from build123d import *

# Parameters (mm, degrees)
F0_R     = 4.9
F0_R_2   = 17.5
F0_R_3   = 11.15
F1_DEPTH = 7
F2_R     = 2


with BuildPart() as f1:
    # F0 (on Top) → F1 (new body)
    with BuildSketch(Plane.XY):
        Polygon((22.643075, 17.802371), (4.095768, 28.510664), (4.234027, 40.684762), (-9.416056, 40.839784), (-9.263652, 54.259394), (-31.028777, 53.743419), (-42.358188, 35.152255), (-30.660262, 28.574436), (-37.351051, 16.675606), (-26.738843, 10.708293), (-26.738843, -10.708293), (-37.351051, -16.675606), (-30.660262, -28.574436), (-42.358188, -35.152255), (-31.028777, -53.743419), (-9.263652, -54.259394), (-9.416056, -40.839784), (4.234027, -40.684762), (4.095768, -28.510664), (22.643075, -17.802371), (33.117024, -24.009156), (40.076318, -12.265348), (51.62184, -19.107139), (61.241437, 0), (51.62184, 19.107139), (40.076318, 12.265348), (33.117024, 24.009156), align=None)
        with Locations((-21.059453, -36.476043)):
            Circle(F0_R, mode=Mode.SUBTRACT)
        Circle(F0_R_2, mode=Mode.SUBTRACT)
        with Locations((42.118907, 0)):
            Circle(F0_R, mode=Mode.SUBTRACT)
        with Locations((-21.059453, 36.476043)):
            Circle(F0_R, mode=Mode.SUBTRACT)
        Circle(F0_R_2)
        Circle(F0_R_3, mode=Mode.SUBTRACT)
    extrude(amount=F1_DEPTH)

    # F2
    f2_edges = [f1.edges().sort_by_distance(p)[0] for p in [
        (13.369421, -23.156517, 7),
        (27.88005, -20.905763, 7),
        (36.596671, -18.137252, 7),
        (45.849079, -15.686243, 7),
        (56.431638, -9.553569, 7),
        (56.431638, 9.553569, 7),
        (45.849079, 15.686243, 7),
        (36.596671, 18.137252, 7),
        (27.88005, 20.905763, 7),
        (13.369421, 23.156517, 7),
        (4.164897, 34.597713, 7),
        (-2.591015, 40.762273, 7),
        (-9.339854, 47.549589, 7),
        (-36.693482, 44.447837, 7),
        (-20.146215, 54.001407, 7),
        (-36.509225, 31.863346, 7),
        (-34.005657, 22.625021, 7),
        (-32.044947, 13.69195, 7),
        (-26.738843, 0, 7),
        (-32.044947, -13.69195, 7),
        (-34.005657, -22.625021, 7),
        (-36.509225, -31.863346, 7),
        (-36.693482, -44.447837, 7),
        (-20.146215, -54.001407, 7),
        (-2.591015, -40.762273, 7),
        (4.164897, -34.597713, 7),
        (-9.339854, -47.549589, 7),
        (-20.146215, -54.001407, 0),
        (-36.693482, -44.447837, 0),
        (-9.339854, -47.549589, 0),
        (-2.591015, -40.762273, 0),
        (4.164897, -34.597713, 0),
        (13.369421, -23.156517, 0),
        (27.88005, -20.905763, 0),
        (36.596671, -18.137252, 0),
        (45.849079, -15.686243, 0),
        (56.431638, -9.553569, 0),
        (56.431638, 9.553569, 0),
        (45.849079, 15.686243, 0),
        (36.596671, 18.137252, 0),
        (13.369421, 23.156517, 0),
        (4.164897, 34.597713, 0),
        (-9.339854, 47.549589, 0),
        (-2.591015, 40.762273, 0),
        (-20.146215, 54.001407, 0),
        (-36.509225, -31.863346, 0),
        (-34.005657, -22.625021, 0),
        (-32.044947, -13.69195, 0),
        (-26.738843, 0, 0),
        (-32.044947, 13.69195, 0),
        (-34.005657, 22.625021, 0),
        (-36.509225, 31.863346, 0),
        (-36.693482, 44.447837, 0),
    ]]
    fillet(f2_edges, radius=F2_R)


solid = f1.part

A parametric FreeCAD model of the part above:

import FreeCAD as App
import Part
import Sketcher
from FreeCAD import Vector
Q = App.Units.Quantity


def edges_at(feature, points):
    """Names of the edges that pass closest to the given points."""
    edges = feature.Shape.Edges
    near = lambda p: min(range(len(edges)), key=lambda i: edges[i].distToShape(Part.Vertex(*p))[0])
    return sorted({f"Edge{near(p) + 1}" for p in points})

doc = App.newDocument("Part")
body = doc.addObject("PartDesign::Body", "Body")

sketch1 = body.newObject("Sketcher::SketchObject", "Sketch")
sketch1.AttachmentSupport = (doc.getObject("XY_Plane"), [""])
sketch1.MapMode = "FlatFace"
sketch1.addGeometry([
    Part.LineSegment(Vector(22.6, 17.8, 0), Vector(4.1, 28.5, 0)),
    Part.LineSegment(Vector(4.1, 28.5, 0), Vector(4.2, 40.7, 0)),
    Part.LineSegment(Vector(4.2, 40.7, 0), Vector(-9.4, 40.8, 0)),
    Part.LineSegment(Vector(-9.4, 40.8, 0), Vector(-9.3, 54.3, 0)),
    Part.LineSegment(Vector(-9.3, 54.3, 0), Vector(-31, 53.7, 0)),
    Part.LineSegment(Vector(-31, 53.7, 0), Vector(-42.4, 35.2, 0)),
    Part.LineSegment(Vector(-42.4, 35.2, 0), Vector(-30.7, 28.6, 0)),
    Part.LineSegment(Vector(-30.7, 28.6, 0), Vector(-37.4, 16.7, 0)),
    Part.LineSegment(Vector(-37.4, 16.7, 0), Vector(-26.7, 10.7, 0)),
    Part.LineSegment(Vector(-26.7, 10.7, 0), Vector(-26.7, -10.7, 0)),
    Part.LineSegment(Vector(-26.7, -10.7, 0), Vector(-37.4, -16.7, 0)),
    Part.LineSegment(Vector(-37.4, -16.7, 0), Vector(-30.7, -28.6, 0)),
    Part.LineSegment(Vector(-30.7, -28.6, 0), Vector(-42.4, -35.2, 0)),
    Part.LineSegment(Vector(-42.4, -35.2, 0), Vector(-31, -53.7, 0)),
    Part.LineSegment(Vector(-31, -53.7, 0), Vector(-9.3, -54.3, 0)),
    Part.LineSegment(Vector(-9.3, -54.3, 0), Vector(-9.4, -40.8, 0)),
    Part.LineSegment(Vector(-9.4, -40.8, 0), Vector(4.2, -40.7, 0)),
    Part.LineSegment(Vector(4.2, -40.7, 0), Vector(4.1, -28.5, 0)),
    Part.LineSegment(Vector(4.1, -28.5, 0), Vector(22.6, -17.8, 0)),
    Part.LineSegment(Vector(22.6, -17.8, 0), Vector(33.1, -24, 0)),
    Part.LineSegment(Vector(33.1, -24, 0), Vector(40.1, -12.3, 0)),
    Part.LineSegment(Vector(40.1, -12.3, 0), Vector(51.6, -19.1, 0)),
    Part.LineSegment(Vector(51.6, -19.1, 0), Vector(61.2, 0, 0)),
    Part.LineSegment(Vector(61.2, 0, 0), Vector(51.6, 19.1, 0)),
    Part.LineSegment(Vector(51.6, 19.1, 0), Vector(40.1, 12.3, 0)),
    Part.LineSegment(Vector(40.1, 12.3, 0), Vector(33.1, 24, 0)),
    Part.LineSegment(Vector(33.1, 24, 0), Vector(22.6, 17.8, 0)),
    Part.Circle(Vector(-21.1, -36.5, 0), Vector(0, 0, 1), 4.9),
    Part.Circle(Vector(0, 0, 0), Vector(0, 0, 1), 11.2),
    Part.Circle(Vector(-21.1, 36.5, 0), Vector(0, 0, 1), 4.9),
    Part.Circle(Vector(42.1, 0, 0), Vector(0, 0, 1), 4.9),
], False)
sketch1.addConstraint([
    Sketcher.Constraint("Coincident", 0, 2, 1, 1),
    Sketcher.Constraint("Coincident", 1, 2, 2, 1),
    Sketcher.Constraint("Coincident", 2, 2, 3, 1),
    Sketcher.Constraint("Coincident", 3, 2, 4, 1),
    Sketcher.Constraint("Coincident", 4, 2, 5, 1),
    Sketcher.Constraint("Coincident", 5, 2, 6, 1),
    Sketcher.Constraint("Coincident", 6, 2, 7, 1),
    Sketcher.Constraint("Coincident", 7, 2, 8, 1),
    Sketcher.Constraint("Coincident", 8, 2, 9, 1),
    Sketcher.Constraint("Coincident", 9, 2, 10, 1),
    Sketcher.Constraint("Coincident", 10, 2, 11, 1),
    Sketcher.Constraint("Coincident", 11, 2, 12, 1),
    Sketcher.Constraint("Coincident", 12, 2, 13, 1),
    Sketcher.Constraint("Coincident", 13, 2, 14, 1),
    Sketcher.Constraint("Coincident", 14, 2, 15, 1),
    Sketcher.Constraint("Coincident", 15, 2, 16, 1),
    Sketcher.Constraint("Coincident", 16, 2, 17, 1),
    Sketcher.Constraint("Coincident", 17, 2, 18, 1),
    Sketcher.Constraint("Coincident", 18, 2, 19, 1),
    Sketcher.Constraint("Coincident", 19, 2, 20, 1),
    Sketcher.Constraint("Coincident", 20, 2, 21, 1),
    Sketcher.Constraint("Coincident", 21, 2, 22, 1),
    Sketcher.Constraint("Coincident", 22, 2, 23, 1),
    Sketcher.Constraint("Coincident", 23, 2, 24, 1),
    Sketcher.Constraint("Coincident", 24, 2, 25, 1),
    Sketcher.Constraint("Coincident", 25, 2, 26, 1),
    Sketcher.Constraint("Coincident", 26, 2, 0, 1),
    Sketcher.Constraint("Vertical", 9),
    Sketcher.Constraint("Coincident", 28, 3, -1, 1),
    Sketcher.Constraint("Equal", 27, 29),
    Sketcher.Constraint("Equal", 29, 30),
    Sketcher.Constraint("Symmetric", 27, 3, 29, 3, -1),
    Sketcher.Constraint("Symmetric", 7, 2, 10, 2, -1),
    Sketcher.Constraint("Symmetric", 6, 2, 11, 2, -1),
    Sketcher.Constraint("Symmetric", 5, 2, 12, 2, -1),
    Sketcher.Constraint("Symmetric", 4, 2, 13, 2, -1),
    Sketcher.Constraint("Symmetric", 3, 2, 14, 2, -1),
    Sketcher.Constraint("Symmetric", 2, 2, 15, 2, -1),
    Sketcher.Constraint("Symmetric", 1, 2, 16, 2, -1),
    Sketcher.Constraint("Symmetric", 0, 2, 17, 2, -1),
    Sketcher.Constraint("Symmetric", 21, 2, 23, 2, -1),
    Sketcher.Constraint("Symmetric", 20, 2, 24, 2, -1),
    Sketcher.Constraint("Symmetric", 19, 2, 25, 2, -1),
    Sketcher.Constraint("Symmetric", 18, 2, 26, 2, -1),
    Sketcher.Constraint("PointOnObject", 30, 3, -1),
    Sketcher.Constraint("PointOnObject", 22, 2, -1),
    Sketcher.Constraint("Perpendicular", 1, 2),
    Sketcher.Constraint("Perpendicular", 2, 3),
    Sketcher.Constraint("Perpendicular", 6, 7),
    Sketcher.Constraint("Perpendicular", 7, 8),
    Sketcher.Constraint("Perpendicular", 10, 11),
    Sketcher.Constraint("Perpendicular", 19, 20),
    Sketcher.Constraint("Perpendicular", 20, 21),
    Sketcher.Constraint("Equal", 4, 5),
    Sketcher.Constraint("Equal", 3, 6),
    Sketcher.Constraint("Equal", 2, 7),
    Sketcher.Constraint("Equal", 1, 8),
    Sketcher.Constraint("Equal", 17, 19),
    Sketcher.Constraint("Equal", 16, 20),
    Sketcher.Constraint("Equal", 15, 21),
    Sketcher.Constraint("Diameter", 27, 9.8),
    Sketcher.Constraint("Diameter", 28, 22.3),
    Sketcher.Constraint("Angle", 0, Q("149.999999 deg")),
    Sketcher.Constraint("DistanceY", 0, 2, 1, 2, 12.174098),
    Sketcher.Constraint("DistanceX", 29, 3, 3, 2, 11.795801),
    Sketcher.Constraint("DistanceY", 9, 2, 7, 2, 27.383899),
    Sketcher.Constraint("DistanceX", 10, 2, 14, 2, 28.087399),
    Sketcher.Constraint("Distance", 4, 21.77124),
    Sketcher.Constraint("Distance", 22, 21.392041),
    Sketcher.Constraint("DistanceY", 9, 2, 9, 1, 21.416586),
    Sketcher.Constraint("DistanceY", -1, 1, 4, 2, 53.743419),
    Sketcher.Constraint("DistanceX", 6, 2, -1, 1, 30.660262),
    Sketcher.Constraint("DistanceX", 7, 2, -1, 1, 37.351051),
    Sketcher.Constraint("DistanceY", 18, 2, -1, 1, 17.802371),
    Sketcher.Constraint("DistanceX", -1, 1, 21, 2, 51.62184),
    Sketcher.Constraint("DistanceY", 21, 2, -1, 1, 19.107139),
    Sketcher.Constraint("DistanceX", 27, 3, 30, 3, 63.17836),
    Sketcher.Constraint("DistanceX", 29, 3, 0, 2, 25.155221),
    Sketcher.Constraint("DistanceY", 0, 2, 29, 3, 7.965379),
])
pad1 = body.newObject("PartDesign::Pad", "Pad")
pad1.Profile = sketch1
pad1.Length = 7
doc.recompute()

fillet = body.newObject("PartDesign::Fillet", "Fillet")
fillet.Base = (pad1, edges_at(pad1, [
    (13.369, -23.157, 7),
    (27.88, -20.906, 7),
    (36.597, -18.137, 7),
    (45.849, -15.686, 7),
    (56.432, -9.554, 7),
    (56.432, 9.554, 7),
    (45.849, 15.686, 7),
    (36.597, 18.137, 7),
    (27.88, 20.906, 7),
    (13.369, 23.157, 7),
    (4.165, 34.598, 7),
    (-2.591, 40.762, 7),
    (-9.34, 47.55, 7),
    (-36.693, 44.448, 7),
    (-20.146, 54.001, 7),
    (-36.509, 31.863, 7),
    (-34.006, 22.625, 7),
    (-32.045, 13.692, 7),
    (-26.739, 0, 7),
    (-32.045, -13.692, 7),
    (-34.006, -22.625, 7),
    (-36.509, -31.863, 7),
    (-36.693, -44.448, 7),
    (-20.146, -54.001, 7),
    (-2.591, -40.762, 7),
    (4.165, -34.598, 7),
    (-9.34, -47.55, 7),
    (-20.146, -54.001, 0),
    (-36.693, -44.448, 0),
    (-9.34, -47.55, 0),
    (-2.591, -40.762, 0),
    (4.165, -34.598, 0),
    (13.369, -23.157, 0),
    (27.88, -20.906, 0),
    (36.597, -18.137, 0),
    (45.849, -15.686, 0),
    (56.432, -9.554, 0),
    (56.432, 9.554, 0),
    (45.849, 15.686, 0),
    (36.597, 18.137, 0),
    (13.369, 23.157, 0),
    (4.165, 34.598, 0),
    (-9.34, 47.55, 0),
    (-2.591, 40.762, 0),
    (-20.146, 54.001, 0),
    (-36.509, -31.863, 0),
    (-34.006, -22.625, 0),
    (-32.045, -13.692, 0),
    (-26.739, 0, 0),
    (-32.045, 13.692, 0),
    (-34.006, 22.625, 0),
    (-36.509, 31.863, 0),
    (-36.693, 44.448, 0),
]))
fillet.Radius = 2

doc.recompute()
